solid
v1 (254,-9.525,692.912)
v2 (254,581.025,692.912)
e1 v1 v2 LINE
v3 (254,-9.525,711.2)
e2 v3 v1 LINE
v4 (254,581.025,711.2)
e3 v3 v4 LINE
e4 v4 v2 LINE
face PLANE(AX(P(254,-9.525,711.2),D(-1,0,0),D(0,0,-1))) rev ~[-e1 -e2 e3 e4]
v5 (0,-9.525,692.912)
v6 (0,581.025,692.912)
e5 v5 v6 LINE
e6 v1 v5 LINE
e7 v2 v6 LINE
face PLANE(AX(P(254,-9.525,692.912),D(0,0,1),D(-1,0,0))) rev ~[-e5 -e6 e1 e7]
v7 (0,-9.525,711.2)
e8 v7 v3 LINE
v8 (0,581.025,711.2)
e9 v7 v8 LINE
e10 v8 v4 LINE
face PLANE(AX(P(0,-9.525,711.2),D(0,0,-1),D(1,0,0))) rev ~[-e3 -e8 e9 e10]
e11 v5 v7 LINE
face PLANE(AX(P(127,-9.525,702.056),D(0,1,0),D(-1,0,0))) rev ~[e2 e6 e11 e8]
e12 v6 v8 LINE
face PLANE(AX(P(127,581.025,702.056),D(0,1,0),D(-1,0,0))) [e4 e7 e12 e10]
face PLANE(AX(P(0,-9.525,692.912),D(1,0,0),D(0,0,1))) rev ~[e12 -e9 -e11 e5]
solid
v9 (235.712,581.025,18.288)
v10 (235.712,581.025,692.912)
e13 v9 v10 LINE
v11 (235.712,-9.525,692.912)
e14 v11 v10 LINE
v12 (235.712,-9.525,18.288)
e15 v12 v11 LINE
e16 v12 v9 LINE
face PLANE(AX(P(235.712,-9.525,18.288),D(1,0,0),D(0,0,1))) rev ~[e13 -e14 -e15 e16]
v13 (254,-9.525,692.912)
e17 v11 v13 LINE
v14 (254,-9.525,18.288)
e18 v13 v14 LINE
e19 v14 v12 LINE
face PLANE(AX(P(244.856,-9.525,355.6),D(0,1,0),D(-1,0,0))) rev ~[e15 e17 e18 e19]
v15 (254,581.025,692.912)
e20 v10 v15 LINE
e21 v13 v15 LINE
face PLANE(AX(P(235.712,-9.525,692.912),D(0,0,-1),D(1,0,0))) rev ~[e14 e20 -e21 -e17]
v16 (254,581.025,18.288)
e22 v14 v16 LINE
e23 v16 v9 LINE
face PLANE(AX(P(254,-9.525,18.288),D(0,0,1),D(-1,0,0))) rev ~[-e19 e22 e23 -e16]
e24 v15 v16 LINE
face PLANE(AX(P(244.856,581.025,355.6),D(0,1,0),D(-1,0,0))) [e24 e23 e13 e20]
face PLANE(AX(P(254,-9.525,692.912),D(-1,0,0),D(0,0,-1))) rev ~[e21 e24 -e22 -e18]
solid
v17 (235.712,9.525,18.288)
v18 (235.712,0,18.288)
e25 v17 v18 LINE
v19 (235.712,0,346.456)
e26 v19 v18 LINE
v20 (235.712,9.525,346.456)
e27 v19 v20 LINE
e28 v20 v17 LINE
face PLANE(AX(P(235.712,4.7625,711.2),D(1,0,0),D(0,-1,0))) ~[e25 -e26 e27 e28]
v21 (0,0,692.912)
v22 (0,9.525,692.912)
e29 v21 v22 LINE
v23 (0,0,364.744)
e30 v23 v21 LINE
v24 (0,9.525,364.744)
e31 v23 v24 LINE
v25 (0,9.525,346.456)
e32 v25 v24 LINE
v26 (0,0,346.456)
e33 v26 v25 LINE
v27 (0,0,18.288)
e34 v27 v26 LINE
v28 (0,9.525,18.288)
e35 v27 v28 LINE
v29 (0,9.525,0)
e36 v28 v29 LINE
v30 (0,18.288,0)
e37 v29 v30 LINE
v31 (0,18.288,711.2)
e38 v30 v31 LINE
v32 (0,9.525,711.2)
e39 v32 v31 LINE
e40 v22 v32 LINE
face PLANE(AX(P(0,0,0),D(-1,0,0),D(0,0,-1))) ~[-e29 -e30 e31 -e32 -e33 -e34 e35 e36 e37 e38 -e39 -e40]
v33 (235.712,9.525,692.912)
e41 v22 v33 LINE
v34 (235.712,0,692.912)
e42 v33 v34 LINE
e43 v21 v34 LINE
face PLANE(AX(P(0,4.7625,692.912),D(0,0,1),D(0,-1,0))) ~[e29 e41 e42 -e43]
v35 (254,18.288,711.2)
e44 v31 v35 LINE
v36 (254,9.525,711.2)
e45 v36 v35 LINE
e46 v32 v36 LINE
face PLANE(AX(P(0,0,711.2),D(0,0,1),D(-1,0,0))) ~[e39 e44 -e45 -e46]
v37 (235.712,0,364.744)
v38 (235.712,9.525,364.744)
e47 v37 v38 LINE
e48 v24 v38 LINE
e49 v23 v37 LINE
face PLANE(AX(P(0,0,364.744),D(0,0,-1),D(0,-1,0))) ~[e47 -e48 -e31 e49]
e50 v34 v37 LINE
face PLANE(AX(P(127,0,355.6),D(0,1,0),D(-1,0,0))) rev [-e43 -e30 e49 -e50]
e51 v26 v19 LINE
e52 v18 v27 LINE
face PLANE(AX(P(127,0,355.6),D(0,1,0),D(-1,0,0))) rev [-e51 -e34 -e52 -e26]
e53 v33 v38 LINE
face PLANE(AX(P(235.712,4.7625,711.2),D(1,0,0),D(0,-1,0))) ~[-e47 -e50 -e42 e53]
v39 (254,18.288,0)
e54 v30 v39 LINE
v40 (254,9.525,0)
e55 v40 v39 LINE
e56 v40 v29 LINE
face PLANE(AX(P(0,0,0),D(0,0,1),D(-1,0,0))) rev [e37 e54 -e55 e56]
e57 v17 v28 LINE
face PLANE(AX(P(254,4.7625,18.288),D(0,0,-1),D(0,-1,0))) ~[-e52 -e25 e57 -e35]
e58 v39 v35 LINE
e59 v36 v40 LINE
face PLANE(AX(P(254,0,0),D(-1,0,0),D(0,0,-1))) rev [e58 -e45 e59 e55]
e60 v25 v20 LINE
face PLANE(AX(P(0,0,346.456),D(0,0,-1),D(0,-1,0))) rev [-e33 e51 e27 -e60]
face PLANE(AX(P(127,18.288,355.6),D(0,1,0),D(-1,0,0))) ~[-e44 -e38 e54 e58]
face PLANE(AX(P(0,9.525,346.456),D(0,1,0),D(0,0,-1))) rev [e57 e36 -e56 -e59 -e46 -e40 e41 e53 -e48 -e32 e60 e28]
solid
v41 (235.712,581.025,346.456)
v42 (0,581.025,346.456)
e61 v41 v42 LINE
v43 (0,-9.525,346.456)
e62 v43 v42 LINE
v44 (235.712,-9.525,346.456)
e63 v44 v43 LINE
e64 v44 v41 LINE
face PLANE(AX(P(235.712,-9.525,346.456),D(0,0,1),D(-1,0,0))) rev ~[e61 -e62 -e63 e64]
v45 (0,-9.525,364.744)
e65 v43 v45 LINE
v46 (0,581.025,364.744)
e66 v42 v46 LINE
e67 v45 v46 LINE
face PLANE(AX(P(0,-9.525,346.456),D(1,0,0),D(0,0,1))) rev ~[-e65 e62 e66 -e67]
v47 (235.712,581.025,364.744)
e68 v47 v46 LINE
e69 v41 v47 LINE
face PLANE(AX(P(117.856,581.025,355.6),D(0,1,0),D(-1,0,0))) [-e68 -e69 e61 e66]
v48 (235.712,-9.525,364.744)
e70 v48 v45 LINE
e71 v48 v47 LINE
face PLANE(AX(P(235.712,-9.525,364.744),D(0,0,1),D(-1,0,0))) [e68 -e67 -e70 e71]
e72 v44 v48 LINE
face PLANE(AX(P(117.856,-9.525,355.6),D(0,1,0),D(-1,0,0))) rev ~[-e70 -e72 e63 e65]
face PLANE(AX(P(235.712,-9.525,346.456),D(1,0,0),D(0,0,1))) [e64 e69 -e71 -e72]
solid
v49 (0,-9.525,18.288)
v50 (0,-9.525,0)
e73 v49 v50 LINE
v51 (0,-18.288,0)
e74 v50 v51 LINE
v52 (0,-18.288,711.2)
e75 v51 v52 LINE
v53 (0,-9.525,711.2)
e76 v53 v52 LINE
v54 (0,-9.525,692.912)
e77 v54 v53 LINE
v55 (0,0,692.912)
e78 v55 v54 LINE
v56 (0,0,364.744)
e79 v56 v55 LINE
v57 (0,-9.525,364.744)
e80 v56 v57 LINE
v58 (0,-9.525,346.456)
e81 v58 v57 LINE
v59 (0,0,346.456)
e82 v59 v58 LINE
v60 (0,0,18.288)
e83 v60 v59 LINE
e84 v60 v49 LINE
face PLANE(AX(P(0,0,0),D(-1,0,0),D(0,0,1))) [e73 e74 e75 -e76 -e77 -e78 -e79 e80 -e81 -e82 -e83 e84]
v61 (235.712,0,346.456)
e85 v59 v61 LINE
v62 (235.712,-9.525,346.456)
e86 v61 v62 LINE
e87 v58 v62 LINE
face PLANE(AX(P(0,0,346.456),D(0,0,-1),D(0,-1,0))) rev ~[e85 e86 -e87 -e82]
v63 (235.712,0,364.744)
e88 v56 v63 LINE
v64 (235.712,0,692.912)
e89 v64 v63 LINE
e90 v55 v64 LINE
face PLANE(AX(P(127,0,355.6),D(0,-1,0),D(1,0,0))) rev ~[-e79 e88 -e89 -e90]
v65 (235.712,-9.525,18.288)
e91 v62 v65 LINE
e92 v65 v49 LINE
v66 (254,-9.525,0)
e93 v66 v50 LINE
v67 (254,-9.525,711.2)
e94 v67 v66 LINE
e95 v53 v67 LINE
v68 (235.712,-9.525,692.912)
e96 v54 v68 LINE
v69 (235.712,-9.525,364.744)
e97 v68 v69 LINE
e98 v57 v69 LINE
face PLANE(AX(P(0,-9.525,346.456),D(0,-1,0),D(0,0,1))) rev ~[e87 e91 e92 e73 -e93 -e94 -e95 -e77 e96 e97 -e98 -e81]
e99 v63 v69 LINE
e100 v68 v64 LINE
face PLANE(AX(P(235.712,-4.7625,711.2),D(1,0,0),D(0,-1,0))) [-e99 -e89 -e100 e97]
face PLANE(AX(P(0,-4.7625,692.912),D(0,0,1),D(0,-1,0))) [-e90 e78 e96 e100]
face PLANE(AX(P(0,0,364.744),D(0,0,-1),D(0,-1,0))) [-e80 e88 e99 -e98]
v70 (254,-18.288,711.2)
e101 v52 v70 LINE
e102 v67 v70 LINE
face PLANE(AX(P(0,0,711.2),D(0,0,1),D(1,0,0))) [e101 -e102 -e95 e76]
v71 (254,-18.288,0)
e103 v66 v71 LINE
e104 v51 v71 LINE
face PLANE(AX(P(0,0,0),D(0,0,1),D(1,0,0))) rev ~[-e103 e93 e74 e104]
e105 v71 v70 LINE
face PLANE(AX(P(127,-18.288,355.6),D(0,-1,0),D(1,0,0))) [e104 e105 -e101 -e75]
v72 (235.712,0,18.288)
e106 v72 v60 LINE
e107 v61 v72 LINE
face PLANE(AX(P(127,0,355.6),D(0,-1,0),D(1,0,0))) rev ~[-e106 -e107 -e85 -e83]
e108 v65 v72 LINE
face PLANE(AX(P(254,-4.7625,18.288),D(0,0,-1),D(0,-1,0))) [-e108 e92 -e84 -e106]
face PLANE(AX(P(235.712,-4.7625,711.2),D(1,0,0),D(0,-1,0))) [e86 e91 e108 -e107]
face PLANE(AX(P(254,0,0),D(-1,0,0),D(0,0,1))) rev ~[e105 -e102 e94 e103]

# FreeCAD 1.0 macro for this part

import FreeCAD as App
import Part
import Sketcher
from FreeCAD import Vector
Q = App.Units.Quantity

doc = App.newDocument("Part")
body = doc.addObject("PartDesign::Body", "Body")

# Sketch on XZ plane
sketch1 = doc.addObject("Sketcher::SketchObject", "Sketch")
body.addObject(sketch1)
sketch1.AttachmentSupport = (doc.XZ_Plane, [""])
sketch1.MapMode = "FlatFace"
sketch1.addGeometry(Part.LineSegment(Vector(0, 711, 0), Vector(0, 0, 0)), False)
sketch1.addGeometry(Part.LineSegment(Vector(0, 0, 0), Vector(254, 0, 0)), False)
sketch1.addGeometry(Part.LineSegment(Vector(254, 0, 0), Vector(254, 711, 0)), False)
sketch1.addGeometry(Part.LineSegment(Vector(254, 711, 0), Vector(0, 711, 0)), False)
sketch1.addConstraint(Sketcher.Constraint("Coincident", 0, 2, 1, 1))
sketch1.addConstraint(Sketcher.Constraint("Coincident", 1, 2, 2, 1))
sketch1.addConstraint(Sketcher.Constraint("Coincident", 2, 2, 3, 1))
sketch1.addConstraint(Sketcher.Constraint("Coincident", 3, 2, 0, 1))
sketch1.addConstraint(Sketcher.Constraint("Vertical", 0))
sketch1.addConstraint(Sketcher.Constraint("Horizontal", 1))
sketch1.addConstraint(Sketcher.Constraint("Vertical", 2))
sketch1.addConstraint(Sketcher.Constraint("Horizontal", 3))
sketch1.addConstraint(Sketcher.Constraint("Coincident", 0, 2, -1, 1))
sketch1.addConstraint(Sketcher.Constraint("DistanceX", 1, 1, 1, 2, Q("10 in")))
sketch1.addConstraint(Sketcher.Constraint("DistanceY", 0, 2, 0, 1, Q("28 in")))
pad1 = doc.addObject("PartDesign::Pad", "Pad")
body.addObject(pad1)
pad1.Profile = sketch1
pad1.Length = Q("0.72 in")

# Sketch on YZ plane
sketch2 = doc.addObject("Sketcher::SketchObject", "Sketch001")
body.addObject(sketch2)
sketch2.AttachmentSupport = (doc.YZ_Plane, [""])
sketch2.MapMode = "FlatFace"
sketch2.addGeometry(Part.LineSegment(Vector(0, 711, 0), Vector(0, 693, 0)), False)
sketch2.addGeometry(Part.LineSegment(Vector(0, 693, 0), Vector(-10, 693, 0)), False)
sketch2.addGeometry(Part.LineSegment(Vector(-10, 693, 0), Vector(-10, 711, 0)), False)
sketch2.addGeometry(Part.LineSegment(Vector(-10, 711, 0), Vector(0, 711, 0)), False)
sketch2.addConstraint(Sketcher.Constraint("Coincident", 0, 2, 1, 1))
sketch2.addConstraint(Sketcher.Constraint("Coincident", 1, 2, 2, 1))
sketch2.addConstraint(Sketcher.Constraint("Coincident", 2, 2, 3, 1))
sketch2.addConstraint(Sketcher.Constraint("Coincident", 3, 2, 0, 1))
sketch2.addConstraint(Sketcher.Constraint("Vertical", 0))
sketch2.addConstraint(Sketcher.Constraint("Horizontal", 1))
sketch2.addConstraint(Sketcher.Constraint("Vertical", 2))
sketch2.addConstraint(Sketcher.Constraint("Horizontal", 3))
sketch2.addConstraint(Sketcher.Constraint("PointOnObject", 0, 2, -2))
sketch2.addConstraint(Sketcher.Constraint("DistanceY", -1, 1, 2, 2, Q("28 in")))
sketch2.addConstraint(Sketcher.Constraint("DistanceY", 0, 2, 0, 1, Q("0.72 in")))
sketch2.addConstraint(Sketcher.Constraint("DistanceX", 1, 2, 1, 1, Q("0.375 in")))

# Sketch on XZ plane
sketch3 = doc.addObject("Sketcher::SketchObject", "Sketch002")
body.addObject(sketch3)
sketch3.AttachmentSupport = (doc.XZ_Plane, [""])
sketch3.MapMode = "FlatFace"
sketch3.addGeometry(Part.LineSegment(Vector(0, 711, 0), Vector(254, 711, 0)), False)
sketch3.addGeometry(Part.LineSegment(Vector(254, 711, 0), Vector(254, 0, 0)), False)
sketch3.addGeometry(Part.LineSegment(Vector(254, 0, 0), Vector(0, 0, 0)), False)
sketch3.addConstraint(Sketcher.Constraint("Coincident", 0, 2, 1, 1))
sketch3.addConstraint(Sketcher.Constraint("Coincident", 1, 2, 2, 1))
sketch3.addConstraint(Sketcher.Constraint("Horizontal", 0))
sketch3.addConstraint(Sketcher.Constraint("Vertical", 1))
sketch3.addConstraint(Sketcher.Constraint("Horizontal", 2))
sketch3.addConstraint(Sketcher.Constraint("Coincident", 2, 2, -1, 1))
sketch3.addConstraint(Sketcher.Constraint("PointOnObject", 0, 1, -2))
sketch3.addConstraint(Sketcher.Constraint("DistanceX", 0, 1, 0, 2, Q("10 in")))
sketch3.addConstraint(Sketcher.Constraint("DistanceY", 1, 2, 1, 1, Q("28 in")))
doc.recompute()

subtractivepipe = doc.addObject("PartDesign::SubtractivePipe", "SubtractivePipe")
body.addObject(subtractivepipe)
subtractivepipe.Profile = sketch2
subtractivepipe.Spine = (sketch3, ["Edge1", "Edge2", "Edge3"])
subtractivepipe.Transition = "Right corner"

# Sketch on YZ plane
sketch4 = doc.addObject("Sketcher::SketchObject", "Sketch003")
body.addObject(sketch4)
sketch4.AttachmentSupport = (doc.YZ_Plane, [""])
sketch4.MapMode = "FlatFace"
sketch4.addGeometry(Part.LineSegment(Vector(0, 365, 0), Vector(0, 346, 0)), False)
sketch4.addGeometry(Part.LineSegment(Vector(0, 346, 0), Vector(-10, 346, 0)), False)
sketch4.addGeometry(Part.LineSegment(Vector(-10, 346, 0), Vector(-10, 365, 0)), False)
sketch4.addGeometry(Part.LineSegment(Vector(-10, 365, 0), Vector(0, 365, 0)), False)
sketch4.addConstraint(Sketcher.Constraint("Coincident", 0, 2, 1, 1))
sketch4.addConstraint(Sketcher.Constraint("Coincident", 1, 2, 2, 1))
sketch4.addConstraint(Sketcher.Constraint("Coincident", 2, 2, 3, 1))
sketch4.addConstraint(Sketcher.Constraint("Coincident", 3, 2, 0, 1))
sketch4.addConstraint(Sketcher.Constraint("Vertical", 0))
sketch4.addConstraint(Sketcher.Constraint("Horizontal", 1))
sketch4.addConstraint(Sketcher.Constraint("Vertical", 2))
sketch4.addConstraint(Sketcher.Constraint("Horizontal", 3))
sketch4.addConstraint(Sketcher.Constraint("PointOnObject", 0, 2, -2))
sketch4.addConstraint(Sketcher.Constraint("DistanceY", 0, 2, 0, 1, Q("0.72 in")))
sketch4.addConstraint(Sketcher.Constraint("DistanceX", 1, 2, 1, 1, Q("0.375 in")))
sketch4.addConstraint(Sketcher.Constraint("DistanceY", -1, 1, 0, 2, Q("13.64 in")))
pocket1 = doc.addObject("PartDesign::Pocket", "Pocket")
body.addObject(pocket1)
pocket1.Profile = sketch4
pocket1.Type = "ThroughAll"
pocket1.Reversed = True
body2 = doc.addObject("PartDesign::Body", "Body001")

# Sketch on XZ plane
sketch5 = doc.addObject("Sketcher::SketchObject", "Sketch004")
body2.addObject(sketch5)
sketch5.AttachmentSupport = (doc.getObject("XZ_Plane001"), [""])
sketch5.MapMode = "FlatFace"
sketch5.AttachmentOffset = App.Placement(Vector(0, 0, 0.375 * 25.4), App.Rotation())
sketch5.addGeometry(Part.LineSegment(Vector(0, 693, 0), Vector(0, 711, 0)), False)
sketch5.addGeometry(Part.LineSegment(Vector(0, 711, 0), Vector(254, 711, 0)), False)
sketch5.addGeometry(Part.LineSegment(Vector(254, 711, 0), Vector(254, 693, 0)), False)
sketch5.addGeometry(Part.LineSegment(Vector(254, 693, 0), Vector(0, 693, 0)), False)
sketch5.addConstraint(Sketcher.Constraint("Coincident", 0, 2, 1, 1))
sketch5.addConstraint(Sketcher.Constraint("Coincident", 1, 2, 2, 1))
sketch5.addConstraint(Sketcher.Constraint("Coincident", 2, 2, 3, 1))
sketch5.addConstraint(Sketcher.Constraint("Coincident", 3, 2, 0, 1))
sketch5.addConstraint(Sketcher.Constraint("Vertical", 0))
sketch5.addConstraint(Sketcher.Constraint("Horizontal", 1))
sketch5.addConstraint(Sketcher.Constraint("Vertical", 2))
sketch5.addConstraint(Sketcher.Constraint("Horizontal", 3))
sketch5.addConstraint(Sketcher.Constraint("PointOnObject", 0, 2, -2))
sketch5.addConstraint(Sketcher.Constraint("DistanceX", 1, 1, 1, 2, Q("10 in")))
sketch5.addConstraint(Sketcher.Constraint("DistanceY", -1, 1, 0, 2, Q("28 in")))
sketch5.addConstraint(Sketcher.Constraint("DistanceY", 0, 1, 0, 2, Q("0.72 in")))
pad2 = doc.addObject("PartDesign::Pad", "Pad001")
body2.addObject(pad2)
pad2.Profile = sketch5
pad2.Length = Q("23.25 in")
pad2.Reversed = True
body3 = doc.addObject("PartDesign::Body", "Body002")

# Sketch on XZ plane
sketch6 = doc.addObject("Sketcher::SketchObject", "Sketch005")
body3.addObject(sketch6)
sketch6.AttachmentSupport = (doc.getObject("XZ_Plane002"), [""])
sketch6.MapMode = "FlatFace"
sketch6.AttachmentOffset = App.Placement(Vector(0, 0, 0.375 * 25.4), App.Rotation())
sketch6.addGeometry(Part.LineSegment(Vector(236, 693, 0), Vector(254, 693, 0)), False)
sketch6.addGeometry(Part.LineSegment(Vector(254, 693, 0), Vector(254, 18, 0)), False)
sketch6.addGeometry(Part.LineSegment(Vector(254, 18, 0), Vector(236, 18, 0)), False)
sketch6.addGeometry(Part.LineSegment(Vector(236, 18, 0), Vector(236, 693, 0)), False)
sketch6.addConstraint(Sketcher.Constraint("Coincident", 0, 2, 1, 1))
sketch6.addConstraint(Sketcher.Constraint("Coincident", 1, 2, 2, 1))
sketch6.addConstraint(Sketcher.Constraint("Coincident", 2, 2, 3, 1))
sketch6.addConstraint(Sketcher.Constraint("Coincident", 3, 2, 0, 1))
sketch6.addConstraint(Sketcher.Constraint("Horizontal", 0))
sketch6.addConstraint(Sketcher.Constraint("Vertical", 1))
sketch6.addConstraint(Sketcher.Constraint("Horizontal", 2))
sketch6.addConstraint(Sketcher.Constraint("Vertical", 3))
sketch6.addConstraint(Sketcher.Constraint("DistanceX", -1, 1, 0, 2, Q("10 in")))
sketch6.addConstraint(Sketcher.Constraint("DistanceX", 0, 1, 0, 2, Q("0.72 in")))
sketch6.addConstraint(Sketcher.Constraint("DistanceY", 1, 2, 1, 1, Q("26.56 in")))
sketch6.addConstraint(Sketcher.Constraint("DistanceY", -1, 1, 0, 2, Q("27.28 in")))
pad3 = doc.addObject("PartDesign::Pad", "Pad002")
body3.addObject(pad3)
pad3.Profile = sketch6
pad3.Length = Q("23.25 in")
pad3.Reversed = True
body4 = doc.addObject("PartDesign::Body", "Body003")

# Sketch on XZ plane
sketch7 = doc.addObject("Sketcher::SketchObject", "Sketch006")
body4.addObject(sketch7)
sketch7.AttachmentSupport = (doc.getObject("XZ_Plane003"), [""])
sketch7.MapMode = "FlatFace"
sketch7.AttachmentOffset = App.Placement(Vector(0, 0, 0.375 * 25.4), App.Rotation())
sketch7.addGeometry(Part.LineSegment(Vector(236, 365, 0), Vector(236, 346, 0)), False)
sketch7.addGeometry(Part.LineSegment(Vector(236, 346, 0), Vector(0, 346, 0)), False)
sketch7.addGeometry(Part.LineSegment(Vector(0, 346, 0), Vector(0, 365, 0)), False)
sketch7.addGeometry(Part.LineSegment(Vector(0, 365, 0), Vector(236, 365, 0)), False)
sketch7.addConstraint(Sketcher.Constraint("Coincident", 0, 2, 1, 1))
sketch7.addConstraint(Sketcher.Constraint("Coincident", 1, 2, 2, 1))
sketch7.addConstraint(Sketcher.Constraint("Coincident", 2, 2, 3, 1))
sketch7.addConstraint(Sketcher.Constraint("Coincident", 3, 2, 0, 1))
sketch7.addConstraint(Sketcher.Constraint("Vertical", 0))
sketch7.addConstraint(Sketcher.Constraint("Horizontal", 1))
sketch7.addConstraint(Sketcher.Constraint("Vertical", 2))
sketch7.addConstraint(Sketcher.Constraint("Horizontal", 3))
sketch7.addConstraint(Sketcher.Constraint("PointOnObject", 1, 2, -2))
sketch7.addConstraint(Sketcher.Constraint("DistanceX", 1, 2, 1, 1, Q("9.28 in")))
sketch7.addConstraint(Sketcher.Constraint("DistanceY", 0, 2, 0, 1, Q("0.72 in")))
sketch7.addConstraint(Sketcher.Constraint("DistanceY", -1, 1, 0, 2, Q("13.64 in")))
pad4 = doc.addObject("PartDesign::Pad", "Pad003")
body4.addObject(pad4)
pad4.Profile = sketch7
pad4.Length = Q("23.25 in")
pad4.Reversed = True
body5 = doc.addObject("PartDesign::Body", "Body004")
doc.recompute()

mirroring = doc.addObject("Part::Mirroring", "Mirroring")
mirroring.Source = body
mirroring.Base = Vector(0, 0, 0)
mirroring.Normal = Vector(0, -1, 0)
body5.BaseFeature = mirroring
doc.recompute()
mirroring.Visibility = False

doc.recompute()
